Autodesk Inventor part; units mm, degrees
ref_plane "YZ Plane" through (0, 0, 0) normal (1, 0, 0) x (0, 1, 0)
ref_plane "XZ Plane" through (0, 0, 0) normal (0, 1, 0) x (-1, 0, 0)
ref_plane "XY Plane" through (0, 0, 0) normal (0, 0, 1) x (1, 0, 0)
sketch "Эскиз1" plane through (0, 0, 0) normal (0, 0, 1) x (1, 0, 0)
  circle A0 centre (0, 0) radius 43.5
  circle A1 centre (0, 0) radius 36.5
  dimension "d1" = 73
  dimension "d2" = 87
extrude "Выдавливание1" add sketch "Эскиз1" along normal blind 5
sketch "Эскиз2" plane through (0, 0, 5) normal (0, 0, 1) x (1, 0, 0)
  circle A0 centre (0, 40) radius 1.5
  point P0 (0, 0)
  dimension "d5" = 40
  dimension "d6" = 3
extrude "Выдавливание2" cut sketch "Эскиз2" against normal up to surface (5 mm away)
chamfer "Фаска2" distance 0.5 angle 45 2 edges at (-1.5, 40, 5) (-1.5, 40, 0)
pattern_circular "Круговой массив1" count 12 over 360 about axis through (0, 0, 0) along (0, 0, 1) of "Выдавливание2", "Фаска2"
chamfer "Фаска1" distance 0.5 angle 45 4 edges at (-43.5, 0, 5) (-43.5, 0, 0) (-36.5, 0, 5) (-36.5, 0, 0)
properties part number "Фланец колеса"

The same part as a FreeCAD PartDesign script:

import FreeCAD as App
import Part
import Sketcher

V = App.Vector


def edges_at(feature, points):
    """Names of the edges that pass closest to the given points."""
    edges = feature.Shape.Edges
    near = lambda p: min(range(len(edges)), key=lambda i: edges[i].distToShape(Part.Vertex(*p))[0])
    return sorted({f"Edge{near(p) + 1}" for p in points})

doc = App.newDocument("Part")
body = doc.addObject("PartDesign::Body", "Body")

# Sketch on XY plane
sketch1 = doc.addObject("Sketcher::SketchObject", "Sketch")
body.addObject(sketch1)
sketch1.AttachmentSupport = (doc.XY_Plane, [""])
sketch1.MapMode = "FlatFace"
sketch1.addGeometry(Part.Circle(V(0, 0, 0), V(0, 0, 1), 43.5), False)
sketch1.addGeometry(Part.Circle(V(0, 0, 0), V(0, 0, 1), 36.5), False)
sketch1.addConstraint(Sketcher.Constraint("Coincident", 0, 3, -1, 1))
sketch1.addConstraint(Sketcher.Constraint("Coincident", 1, 3, -1, 1))
sketch1.addConstraint(Sketcher.Constraint("Diameter", 0, 87.0))
sketch1.addConstraint(Sketcher.Constraint("Diameter", 1, 73.0))
pad1 = doc.addObject("PartDesign::Pad", "Pad")
body.addObject(pad1)
pad1.Profile = sketch1
pad1.Length = 5

# Sketch on XY plane
sketch2 = doc.addObject("Sketcher::SketchObject", "Sketch001")
body.addObject(sketch2)
sketch2.AttachmentSupport = (doc.XY_Plane, [""])
sketch2.MapMode = "FlatFace"
sketch2.AttachmentOffset = App.Placement(V(0, 0, 5), App.Rotation())
sketch2.addGeometry(Part.Circle(V(0, 40, 0), V(0, 0, 1), 1.5), False)
sketch2.addConstraint(Sketcher.Constraint("PointOnObject", 0, 3, -2))
sketch2.addConstraint(Sketcher.Constraint("Diameter", 0, 3.0))
sketch2.addConstraint(Sketcher.Constraint("DistanceY", -1, 1, 0, 3, 40.0))
pocket1 = doc.addObject("PartDesign::Pocket", "Pocket")
body.addObject(pocket1)
pocket1.Profile = sketch2
pocket1.Length = 5
doc.recompute()

chamfer = doc.addObject("PartDesign::Chamfer", "Chamfer")
body.addObject(chamfer)
chamfer.Base = (pocket1, edges_at(pocket1, [(-1.5, 40, 5), (-1.5, 40, 0)]))
chamfer.Size = 0.5
doc.recompute()

polarpattern = doc.addObject("PartDesign::PolarPattern", "PolarPattern")
body.addObject(polarpattern)
polarpattern.Originals = [pocket1, chamfer]
polarpattern.Axis = (doc.Z_Axis, [""])
polarpattern.Angle = 360
polarpattern.Occurrences = 12
body.Tip = polarpattern
doc.recompute()

chamfer2 = doc.addObject("PartDesign::Chamfer", "Chamfer001")
body.addObject(chamfer2)
chamfer2.Base = (polarpattern, edges_at(polarpattern, [
    (-43.5, 0, 5),
    (-43.5, 0, 0),
    (-36.5, 0, 5),
    (-36.5, 0, 0),
]))
chamfer2.Size = 0.5

doc.recompute()
